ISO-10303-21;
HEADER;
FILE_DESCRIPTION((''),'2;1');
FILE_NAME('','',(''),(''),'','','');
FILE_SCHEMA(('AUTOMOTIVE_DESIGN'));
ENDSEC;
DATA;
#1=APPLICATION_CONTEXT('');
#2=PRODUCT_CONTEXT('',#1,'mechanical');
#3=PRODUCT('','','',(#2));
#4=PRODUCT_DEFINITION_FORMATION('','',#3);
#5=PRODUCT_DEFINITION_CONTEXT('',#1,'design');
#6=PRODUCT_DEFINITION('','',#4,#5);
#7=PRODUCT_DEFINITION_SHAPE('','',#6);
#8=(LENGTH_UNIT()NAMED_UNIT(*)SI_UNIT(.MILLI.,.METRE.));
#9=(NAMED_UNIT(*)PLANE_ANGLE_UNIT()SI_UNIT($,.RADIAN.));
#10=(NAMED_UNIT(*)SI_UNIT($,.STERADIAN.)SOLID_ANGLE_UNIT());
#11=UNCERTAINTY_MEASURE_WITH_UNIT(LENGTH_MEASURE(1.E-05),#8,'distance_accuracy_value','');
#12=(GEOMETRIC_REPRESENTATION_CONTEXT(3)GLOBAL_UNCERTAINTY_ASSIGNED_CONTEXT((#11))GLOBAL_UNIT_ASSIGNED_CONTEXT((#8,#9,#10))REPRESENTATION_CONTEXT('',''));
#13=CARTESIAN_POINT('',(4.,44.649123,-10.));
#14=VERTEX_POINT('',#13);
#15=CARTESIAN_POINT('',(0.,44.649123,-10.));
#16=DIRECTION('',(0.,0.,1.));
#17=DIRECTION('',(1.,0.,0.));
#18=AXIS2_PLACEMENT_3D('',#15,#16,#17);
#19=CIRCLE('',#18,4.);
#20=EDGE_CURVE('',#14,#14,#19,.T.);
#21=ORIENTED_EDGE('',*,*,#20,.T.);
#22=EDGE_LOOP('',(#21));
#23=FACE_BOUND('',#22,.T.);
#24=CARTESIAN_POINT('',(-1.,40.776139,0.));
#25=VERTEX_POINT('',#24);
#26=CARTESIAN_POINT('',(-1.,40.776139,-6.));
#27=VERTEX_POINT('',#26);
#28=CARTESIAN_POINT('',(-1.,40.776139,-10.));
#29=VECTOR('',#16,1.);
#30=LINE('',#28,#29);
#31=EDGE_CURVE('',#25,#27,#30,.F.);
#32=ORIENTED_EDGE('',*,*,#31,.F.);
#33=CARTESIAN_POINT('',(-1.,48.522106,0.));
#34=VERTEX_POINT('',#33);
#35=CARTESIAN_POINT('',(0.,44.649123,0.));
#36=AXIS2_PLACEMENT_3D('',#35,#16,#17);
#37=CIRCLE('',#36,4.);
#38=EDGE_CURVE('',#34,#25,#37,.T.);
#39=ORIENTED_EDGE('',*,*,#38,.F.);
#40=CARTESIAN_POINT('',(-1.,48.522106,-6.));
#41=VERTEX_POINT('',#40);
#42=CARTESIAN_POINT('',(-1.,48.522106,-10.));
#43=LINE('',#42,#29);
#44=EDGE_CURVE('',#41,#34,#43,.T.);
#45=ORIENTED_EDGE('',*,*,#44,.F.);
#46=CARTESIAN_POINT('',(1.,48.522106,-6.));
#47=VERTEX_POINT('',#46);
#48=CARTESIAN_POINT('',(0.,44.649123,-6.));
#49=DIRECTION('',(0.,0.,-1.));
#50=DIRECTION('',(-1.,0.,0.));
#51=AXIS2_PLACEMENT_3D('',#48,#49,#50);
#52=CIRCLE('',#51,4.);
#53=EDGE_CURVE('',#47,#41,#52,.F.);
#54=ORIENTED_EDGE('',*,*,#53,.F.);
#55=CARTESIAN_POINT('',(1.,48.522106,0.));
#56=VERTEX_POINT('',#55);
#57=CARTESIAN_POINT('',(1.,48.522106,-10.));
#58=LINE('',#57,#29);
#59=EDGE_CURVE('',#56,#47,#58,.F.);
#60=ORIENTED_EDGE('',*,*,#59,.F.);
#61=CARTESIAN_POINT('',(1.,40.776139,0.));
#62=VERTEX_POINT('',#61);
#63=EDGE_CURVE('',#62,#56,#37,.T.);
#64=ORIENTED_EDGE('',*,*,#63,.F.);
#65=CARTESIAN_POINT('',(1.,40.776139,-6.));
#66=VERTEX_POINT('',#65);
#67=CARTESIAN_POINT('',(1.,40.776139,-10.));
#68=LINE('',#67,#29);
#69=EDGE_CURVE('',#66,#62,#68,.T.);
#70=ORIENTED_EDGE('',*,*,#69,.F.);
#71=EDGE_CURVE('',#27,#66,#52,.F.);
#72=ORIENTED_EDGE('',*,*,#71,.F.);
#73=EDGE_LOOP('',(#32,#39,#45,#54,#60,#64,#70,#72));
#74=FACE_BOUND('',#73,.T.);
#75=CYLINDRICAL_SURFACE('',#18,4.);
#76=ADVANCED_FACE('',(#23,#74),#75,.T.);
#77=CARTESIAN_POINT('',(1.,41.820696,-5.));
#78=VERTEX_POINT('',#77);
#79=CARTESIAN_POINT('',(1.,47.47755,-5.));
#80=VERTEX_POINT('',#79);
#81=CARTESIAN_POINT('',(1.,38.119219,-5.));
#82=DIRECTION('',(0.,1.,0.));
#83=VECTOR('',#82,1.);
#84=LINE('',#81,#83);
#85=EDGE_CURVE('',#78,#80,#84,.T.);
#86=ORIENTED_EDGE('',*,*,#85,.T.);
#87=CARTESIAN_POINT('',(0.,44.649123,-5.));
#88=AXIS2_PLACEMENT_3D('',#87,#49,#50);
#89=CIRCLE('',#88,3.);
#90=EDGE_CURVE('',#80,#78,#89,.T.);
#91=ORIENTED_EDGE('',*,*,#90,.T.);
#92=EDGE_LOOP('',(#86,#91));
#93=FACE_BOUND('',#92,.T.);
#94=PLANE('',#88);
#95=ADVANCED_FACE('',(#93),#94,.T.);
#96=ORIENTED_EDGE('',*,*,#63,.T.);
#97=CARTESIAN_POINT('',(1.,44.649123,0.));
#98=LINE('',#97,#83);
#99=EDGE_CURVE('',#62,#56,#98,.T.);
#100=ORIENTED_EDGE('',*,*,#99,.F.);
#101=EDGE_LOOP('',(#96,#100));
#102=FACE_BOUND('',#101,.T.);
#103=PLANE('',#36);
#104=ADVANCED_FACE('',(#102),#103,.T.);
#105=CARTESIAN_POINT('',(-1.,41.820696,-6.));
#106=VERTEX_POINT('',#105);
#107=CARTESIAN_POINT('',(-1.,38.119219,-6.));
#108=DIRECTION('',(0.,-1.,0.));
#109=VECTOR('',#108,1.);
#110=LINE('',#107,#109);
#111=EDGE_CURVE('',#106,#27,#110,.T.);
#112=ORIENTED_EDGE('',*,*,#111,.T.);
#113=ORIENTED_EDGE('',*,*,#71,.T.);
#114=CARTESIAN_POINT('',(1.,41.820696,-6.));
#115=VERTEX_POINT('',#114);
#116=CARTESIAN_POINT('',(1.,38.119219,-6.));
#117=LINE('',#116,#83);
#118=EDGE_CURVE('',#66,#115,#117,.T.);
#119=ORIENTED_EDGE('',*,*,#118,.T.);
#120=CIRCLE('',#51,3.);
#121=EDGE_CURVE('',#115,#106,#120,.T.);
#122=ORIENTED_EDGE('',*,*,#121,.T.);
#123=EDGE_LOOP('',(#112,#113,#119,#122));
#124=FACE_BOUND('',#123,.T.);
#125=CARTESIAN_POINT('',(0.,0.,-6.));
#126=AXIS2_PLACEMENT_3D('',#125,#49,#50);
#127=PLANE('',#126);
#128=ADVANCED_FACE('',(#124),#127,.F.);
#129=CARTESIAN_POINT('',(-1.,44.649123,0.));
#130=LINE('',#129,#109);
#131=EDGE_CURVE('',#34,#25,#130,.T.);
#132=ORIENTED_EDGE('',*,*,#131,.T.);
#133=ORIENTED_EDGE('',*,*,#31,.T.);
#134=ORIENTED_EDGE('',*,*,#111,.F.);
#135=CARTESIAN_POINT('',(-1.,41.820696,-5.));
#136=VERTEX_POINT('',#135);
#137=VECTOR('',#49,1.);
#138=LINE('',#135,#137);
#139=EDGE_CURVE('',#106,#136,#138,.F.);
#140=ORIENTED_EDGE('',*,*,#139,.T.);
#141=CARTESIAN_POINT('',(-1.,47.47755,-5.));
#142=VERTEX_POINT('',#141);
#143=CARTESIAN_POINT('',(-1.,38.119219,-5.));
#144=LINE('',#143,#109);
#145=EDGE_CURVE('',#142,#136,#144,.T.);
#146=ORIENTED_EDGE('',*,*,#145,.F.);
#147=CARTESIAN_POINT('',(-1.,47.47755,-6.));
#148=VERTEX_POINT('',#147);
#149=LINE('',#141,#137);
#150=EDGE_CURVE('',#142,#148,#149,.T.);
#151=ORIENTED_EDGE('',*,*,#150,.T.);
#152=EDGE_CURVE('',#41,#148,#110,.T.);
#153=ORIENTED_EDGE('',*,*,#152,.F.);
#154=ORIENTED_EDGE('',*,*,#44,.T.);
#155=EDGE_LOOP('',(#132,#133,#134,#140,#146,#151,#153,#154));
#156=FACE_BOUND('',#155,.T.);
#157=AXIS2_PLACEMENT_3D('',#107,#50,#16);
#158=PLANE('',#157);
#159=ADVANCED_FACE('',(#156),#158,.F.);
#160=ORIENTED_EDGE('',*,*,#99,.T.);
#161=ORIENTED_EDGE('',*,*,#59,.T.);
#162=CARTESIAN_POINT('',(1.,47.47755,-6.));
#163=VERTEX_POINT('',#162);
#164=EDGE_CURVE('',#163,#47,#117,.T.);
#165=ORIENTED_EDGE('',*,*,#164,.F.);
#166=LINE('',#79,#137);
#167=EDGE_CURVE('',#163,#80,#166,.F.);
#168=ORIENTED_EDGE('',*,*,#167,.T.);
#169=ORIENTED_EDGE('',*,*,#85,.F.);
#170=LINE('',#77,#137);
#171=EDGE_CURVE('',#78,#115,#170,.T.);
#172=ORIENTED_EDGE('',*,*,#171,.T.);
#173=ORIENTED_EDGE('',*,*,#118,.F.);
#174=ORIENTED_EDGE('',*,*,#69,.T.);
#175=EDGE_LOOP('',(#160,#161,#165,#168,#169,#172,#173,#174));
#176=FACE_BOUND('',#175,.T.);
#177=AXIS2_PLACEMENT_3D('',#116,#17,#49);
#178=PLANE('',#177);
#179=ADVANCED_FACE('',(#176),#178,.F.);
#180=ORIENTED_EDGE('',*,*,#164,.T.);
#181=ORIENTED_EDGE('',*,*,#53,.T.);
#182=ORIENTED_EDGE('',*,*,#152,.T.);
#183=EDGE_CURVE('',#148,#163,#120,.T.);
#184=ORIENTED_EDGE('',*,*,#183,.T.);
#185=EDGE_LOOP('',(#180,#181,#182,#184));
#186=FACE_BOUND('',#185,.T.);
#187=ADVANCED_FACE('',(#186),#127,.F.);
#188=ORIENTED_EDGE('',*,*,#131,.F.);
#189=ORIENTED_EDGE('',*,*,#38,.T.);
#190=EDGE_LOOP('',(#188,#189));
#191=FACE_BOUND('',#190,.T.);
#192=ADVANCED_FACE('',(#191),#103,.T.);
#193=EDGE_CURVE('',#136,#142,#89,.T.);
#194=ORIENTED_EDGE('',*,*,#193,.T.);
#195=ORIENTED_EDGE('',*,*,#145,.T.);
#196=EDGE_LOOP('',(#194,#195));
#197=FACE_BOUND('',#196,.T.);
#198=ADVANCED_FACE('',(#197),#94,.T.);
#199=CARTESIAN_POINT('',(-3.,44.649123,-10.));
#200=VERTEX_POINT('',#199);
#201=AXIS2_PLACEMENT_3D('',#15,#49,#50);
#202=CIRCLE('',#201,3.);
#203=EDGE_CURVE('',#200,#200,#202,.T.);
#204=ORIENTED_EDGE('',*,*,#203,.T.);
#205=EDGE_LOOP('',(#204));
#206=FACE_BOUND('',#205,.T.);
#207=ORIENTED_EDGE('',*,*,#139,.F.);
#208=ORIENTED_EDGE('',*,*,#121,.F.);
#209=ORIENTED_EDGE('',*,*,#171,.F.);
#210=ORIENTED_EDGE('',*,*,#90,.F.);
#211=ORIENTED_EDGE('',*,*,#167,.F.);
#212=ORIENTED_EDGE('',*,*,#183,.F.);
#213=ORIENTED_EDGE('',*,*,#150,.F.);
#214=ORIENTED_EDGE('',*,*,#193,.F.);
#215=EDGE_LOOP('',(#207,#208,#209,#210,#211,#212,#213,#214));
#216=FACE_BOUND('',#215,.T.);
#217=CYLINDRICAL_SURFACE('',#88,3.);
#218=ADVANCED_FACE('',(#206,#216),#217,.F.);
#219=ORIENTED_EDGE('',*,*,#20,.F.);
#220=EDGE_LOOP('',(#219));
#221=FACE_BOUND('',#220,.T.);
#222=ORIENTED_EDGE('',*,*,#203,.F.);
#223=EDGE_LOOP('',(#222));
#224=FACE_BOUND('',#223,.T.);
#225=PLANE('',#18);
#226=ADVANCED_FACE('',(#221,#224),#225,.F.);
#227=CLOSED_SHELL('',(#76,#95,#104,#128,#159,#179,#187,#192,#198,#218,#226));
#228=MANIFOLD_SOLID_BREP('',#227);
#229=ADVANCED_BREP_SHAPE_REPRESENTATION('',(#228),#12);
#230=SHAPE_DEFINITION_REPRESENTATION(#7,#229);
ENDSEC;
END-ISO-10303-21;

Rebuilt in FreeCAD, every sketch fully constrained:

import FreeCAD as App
import Part
import Sketcher
from FreeCAD import Vector
Q = App.Units.Quantity

doc = App.newDocument("Part")
body = doc.addObject("PartDesign::Body", "Body")

# Sketch on XY plane
sketch1 = doc.addObject("Sketcher::SketchObject", "Sketch")
body.addObject(sketch1)
sketch1.AttachmentSupport = (doc.XY_Plane, [""])
sketch1.MapMode = "FlatFace"
sketch1.addGeometry(Part.Circle(Vector(0, 44.649123, 0), Vector(0, 0, 1), 4), False)
sketch1.addConstraint(Sketcher.Constraint("PointOnObject", 0, 3, -2))
sketch1.addConstraint(Sketcher.Constraint("Diameter", 0, Q("8 mm")))
sketch1.addConstraint(Sketcher.Constraint("DistanceY", -1, 1, 0, 3, Q("44.649123 mm")))
pad1 = doc.addObject("PartDesign::Pad", "Pad")
body.addObject(pad1)
pad1.Profile = sketch1
pad1.Length = 10
pad1.Reversed = True

# Sketch on XY plane
sketch2 = doc.addObject("Sketcher::SketchObject", "Sketch001")
body.addObject(sketch2)
sketch2.AttachmentSupport = (doc.XY_Plane, [""])
sketch2.MapMode = "FlatFace"
sketch2.addGeometry(Part.LineSegment(Vector(-1, 51.179026, 0), Vector(-1, 38.119219, 0)), False)
sketch2.addGeometry(Part.LineSegment(Vector(-1, 38.119219, 0), Vector(1, 38.119219, 0)), False)
sketch2.addGeometry(Part.LineSegment(Vector(1, 38.119219, 0), Vector(1, 51.179026, 0)), False)
sketch2.addGeometry(Part.LineSegment(Vector(1, 51.179026, 0), Vector(-1, 51.179026, 0)), False)
sketch2.addConstraint(Sketcher.Constraint("Coincident", 0, 2, 1, 1))
sketch2.addConstraint(Sketcher.Constraint("Coincident", 1, 2, 2, 1))
sketch2.addConstraint(Sketcher.Constraint("Coincident", 2, 2, 3, 1))
sketch2.addConstraint(Sketcher.Constraint("Coincident", 3, 2, 0, 1))
sketch2.addConstraint(Sketcher.Constraint("Vertical", 0))
sketch2.addConstraint(Sketcher.Constraint("Horizontal", 1))
sketch2.addConstraint(Sketcher.Constraint("Vertical", 2))
sketch2.addConstraint(Sketcher.Constraint("Horizontal", 3))
sketch2.addConstraint(Sketcher.Constraint("DistanceX", 1, 1, 1, 2, Q("2 mm")))
sketch2.addConstraint(Sketcher.Constraint("DistanceX", 0, 2, -1, 1, Q("1 mm")))
sketch2.addConstraint(Sketcher.Constraint("DistanceY", 0, 2, 0, 1, Q("13.059807 mm")))
sketch2.addConstraint(Sketcher.Constraint("DistanceY", -1, 1, 0, 2, Q("38.119219 mm")))
pocket1 = doc.addObject("PartDesign::Pocket", "Pocket")
body.addObject(pocket1)
pocket1.Profile = sketch2
pocket1.Length = 6

# Sketch on XY plane
sketch3 = doc.addObject("Sketcher::SketchObject", "Sketch002")
body.addObject(sketch3)
sketch3.AttachmentSupport = (doc.XY_Plane, [""])
sketch3.MapMode = "FlatFace"
sketch3.AttachmentOffset = App.Placement(Vector(0, 0, -10), App.Rotation())
sketch3.addGeometry(Part.Circle(Vector(0, 44.649123, 0), Vector(0, 0, 1), 3), False)
sketch3.addConstraint(Sketcher.Constraint("PointOnObject", 0, 3, -2))
sketch3.addConstraint(Sketcher.Constraint("Diameter", 0, Q("6 mm")))
sketch3.addConstraint(Sketcher.Constraint("DistanceY", -1, 1, 0, 3, Q("44.649123 mm")))
pocket2 = doc.addObject("PartDesign::Pocket", "Pocket001")
body.addObject(pocket2)
pocket2.Profile = sketch3
pocket2.Length = 5
pocket2.Reversed = True

doc.recompute()
